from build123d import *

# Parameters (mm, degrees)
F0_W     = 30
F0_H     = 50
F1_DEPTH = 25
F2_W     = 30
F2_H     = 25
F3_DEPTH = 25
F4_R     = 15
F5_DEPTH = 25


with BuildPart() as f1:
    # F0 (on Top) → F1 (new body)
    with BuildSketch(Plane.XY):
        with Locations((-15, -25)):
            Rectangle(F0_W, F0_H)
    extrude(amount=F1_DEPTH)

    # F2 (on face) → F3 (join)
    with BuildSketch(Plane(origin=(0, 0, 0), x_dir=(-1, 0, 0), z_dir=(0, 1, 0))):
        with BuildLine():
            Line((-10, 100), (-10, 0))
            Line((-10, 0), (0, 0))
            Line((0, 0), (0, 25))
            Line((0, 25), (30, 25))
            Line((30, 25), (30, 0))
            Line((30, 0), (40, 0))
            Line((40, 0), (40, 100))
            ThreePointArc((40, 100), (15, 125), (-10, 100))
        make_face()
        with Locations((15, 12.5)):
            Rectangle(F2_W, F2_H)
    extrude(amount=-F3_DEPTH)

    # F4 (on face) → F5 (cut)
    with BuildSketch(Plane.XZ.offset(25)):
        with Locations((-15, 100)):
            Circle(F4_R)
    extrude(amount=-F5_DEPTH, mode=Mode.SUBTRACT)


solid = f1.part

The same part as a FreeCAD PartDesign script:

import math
import FreeCAD as App
import Part
import Sketcher

V = App.Vector


def add_polygon(sketch, points):
    """Adds a closed chain of lines whose ends are joined by coincident constraints."""
    first, n = sketch.GeometryCount, len(points)
    for a, b in zip(points, points[1:] + points[:1]):
        sketch.addGeometry(Part.LineSegment(App.Vector(*a, 0), App.Vector(*b, 0)), False)
    for i in range(n):
        sketch.addConstraint(Sketcher.Constraint("Coincident", first + i, 2, first + (i + 1) % n, 1))

doc = App.newDocument("Part")
params = doc.addObject("Spreadsheet::Sheet", "Params")
for row, (alias, value) in enumerate([
    ("sketch1_width", "30 mm"),
    ("sketch1_height", "50 mm"),
    ("pad1_length", "25 mm"),
    ("sketch2_radius", "25 mm"),
    ("sketch2_height", "100 mm"),
    ("pad2_length", "25 mm"),
    ("sketch3_diameter", "30 mm"),
    ("pocket1_length", "25 mm"),
], start=1):
    params.set(f"A{row}", alias)
    params.set(f"B{row}", "=" + value)
    params.setAlias(f"B{row}", alias)

body = doc.addObject("PartDesign::Body", "Body")

# Sketch on XY plane
sketch1 = body.newObject("Sketcher::SketchObject", "Sketch")
sketch1.AttachmentSupport = (doc.getObject("XY_Plane"), [""])
sketch1.MapMode = "FlatFace"
add_polygon(sketch1, [(-30, 0), (-30, -50), (0, -50), (0, 0)])  # lines 0-3
sketch1.addConstraint([
    Sketcher.Constraint("Vertical", 0),
    Sketcher.Constraint("Horizontal", 1),
    Sketcher.Constraint("Vertical", 2),
    Sketcher.Constraint("Horizontal", 3),
    Sketcher.Constraint("Coincident", 2, 2, -1, 1),
    Sketcher.Constraint("DistanceX", 1, 1, 1, 2, 30.0),
    Sketcher.Constraint("DistanceY", 0, 2, 0, 1, 50.0),
])
sketch1.setExpression("Constraints[9]", "Params.sketch1_width")
sketch1.setExpression("Constraints[10]", "Params.sketch1_height")
pad1 = body.newObject("PartDesign::Pad", "Pad")
pad1.Profile = sketch1
pad1.setExpression("Length", "Params.pad1_length")

# Sketch on XZ plane
sketch2 = body.newObject("Sketcher::SketchObject", "Sketch001")
sketch2.AttachmentSupport = (doc.getObject("XZ_Plane"), [""])
sketch2.MapMode = "FlatFace"
sketch2.addGeometry([
    Part.LineSegment(V(10, 100, 0), V(10, 0, 0)),
    Part.LineSegment(V(10, 0, 0), V(-40, 0, 0)),
    Part.LineSegment(V(-40, 0, 0), V(-40, 100, 0)),
    Part.ArcOfCircle(Part.Circle(V(-15, 100, 0), V(0, 0, 1), 25), math.radians(0), math.radians(180)),
], False)
sketch2.addConstraint([
    Sketcher.Constraint("Coincident", 0, 2, 1, 1),
    Sketcher.Constraint("Coincident", 1, 2, 2, 1),
    Sketcher.Constraint("Tangent", 2, 2, 3, 2),
    Sketcher.Constraint("Tangent", 3, 1, 0, 1),
    Sketcher.Constraint("Vertical", 0),
    Sketcher.Constraint("Horizontal", 1),
    Sketcher.Constraint("Vertical", 2),
    Sketcher.Constraint("PointOnObject", 0, 2, -1),
    Sketcher.Constraint("Radius", 3, 25.0),
    Sketcher.Constraint("DistanceY", 0, 2, 0, 1, 100.0),
    Sketcher.Constraint("DistanceX", 3, 3, -1, 1, 15.0),
])
sketch2.setExpression("Constraints[8]", "Params.sketch2_radius")
sketch2.setExpression("Constraints[9]", "Params.sketch2_height")
pad2 = body.newObject("PartDesign::Pad", "Pad001")
pad2.Profile = sketch2
pad2.setExpression("Length", "Params.pad2_length")

# Sketch on XZ plane
sketch3 = body.newObject("Sketcher::SketchObject", "Sketch002")
sketch3.AttachmentSupport = (doc.getObject("XZ_Plane"), [""])
sketch3.MapMode = "FlatFace"
sketch3.AttachmentOffset = App.Placement(V(0, 0, 25), App.Rotation())
sketch3.addGeometry(Part.Circle(V(-15, 100, 0), V(0, 0, 1), 15), False)
sketch3.addConstraint([
    Sketcher.Constraint("Diameter", 0, 30.0),
    Sketcher.Constraint("DistanceX", 0, 3, -1, 1, 15.0),
    Sketcher.Constraint("DistanceY", -1, 1, 0, 3, 100.0),
])
sketch3.setExpression("Constraints[0]", "Params.sketch3_diameter")
pocket1 = body.newObject("PartDesign::Pocket", "Pocket")
pocket1.Profile = sketch3
pocket1.setExpression("Length", "Params.pocket1_length")

doc.recompute()
